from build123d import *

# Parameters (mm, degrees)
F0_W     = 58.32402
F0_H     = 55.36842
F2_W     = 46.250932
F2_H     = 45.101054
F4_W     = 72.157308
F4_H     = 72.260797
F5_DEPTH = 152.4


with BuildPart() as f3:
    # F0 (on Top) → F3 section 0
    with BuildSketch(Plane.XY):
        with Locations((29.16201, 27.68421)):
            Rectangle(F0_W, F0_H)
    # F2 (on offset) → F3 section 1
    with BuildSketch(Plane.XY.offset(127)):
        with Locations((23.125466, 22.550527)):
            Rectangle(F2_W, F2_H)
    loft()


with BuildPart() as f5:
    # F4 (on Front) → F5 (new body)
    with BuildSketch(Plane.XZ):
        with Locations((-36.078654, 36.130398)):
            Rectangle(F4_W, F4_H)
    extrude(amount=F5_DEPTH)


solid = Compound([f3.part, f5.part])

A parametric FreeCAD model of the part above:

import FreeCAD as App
import Part
import Sketcher

V = App.Vector
Q = App.Units.Quantity

doc = App.newDocument("Part")
body = doc.addObject("PartDesign::Body", "Body")

# Sketch on XY plane
sketch1 = body.newObject("Sketcher::SketchObject", "Sketch")
sketch1.AttachmentSupport = (doc.getObject("XY_Plane"), [""])
sketch1.MapMode = "FlatFace"
sketch1.addGeometry([
    Part.LineSegment(V(0, 55, 0), V(0, 0, 0)),
    Part.LineSegment(V(0, 0, 0), V(58, 0, 0)),
    Part.LineSegment(V(58, 0, 0), V(58, 55, 0)),
    Part.LineSegment(V(58, 55, 0), V(0, 55, 0)),
], False)
sketch1.addConstraint([
    Sketcher.Constraint("Coincident", 0, 2, 1, 1),
    Sketcher.Constraint("Coincident", 1, 2, 2, 1),
    Sketcher.Constraint("Coincident", 2, 2, 3, 1),
    Sketcher.Constraint("Coincident", 3, 2, 0, 1),
    Sketcher.Constraint("Vertical", 0),
    Sketcher.Constraint("Horizontal", 1),
    Sketcher.Constraint("Vertical", 2),
    Sketcher.Constraint("Horizontal", 3),
    Sketcher.Constraint("Coincident", 0, 2, -1, 1),
    Sketcher.Constraint("DistanceX", 1, 1, 1, 2, 58.32402),
    Sketcher.Constraint("DistanceY", 0, 2, 0, 1, 55.36842),
])

# Sketch on XY plane
sketch2 = body.newObject("Sketcher::SketchObject", "Sketch001")
sketch2.AttachmentSupport = (doc.getObject("XY_Plane"), [""])
sketch2.MapMode = "FlatFace"
sketch2.AttachmentOffset = App.Placement(V(0, 0, 5 * 25.4), App.Rotation())
sketch2.addGeometry([
    Part.LineSegment(V(0, 45, 0), V(0, 0, 0)),
    Part.LineSegment(V(0, 0, 0), V(46, 0, 0)),
    Part.LineSegment(V(46, 0, 0), V(46, 45, 0)),
    Part.LineSegment(V(46, 45, 0), V(0, 45, 0)),
], False)
sketch2.addConstraint([
    Sketcher.Constraint("Coincident", 0, 2, 1, 1),
    Sketcher.Constraint("Coincident", 1, 2, 2, 1),
    Sketcher.Constraint("Coincident", 2, 2, 3, 1),
    Sketcher.Constraint("Coincident", 3, 2, 0, 1),
    Sketcher.Constraint("Vertical", 0),
    Sketcher.Constraint("Horizontal", 1),
    Sketcher.Constraint("Vertical", 2),
    Sketcher.Constraint("Horizontal", 3),
    Sketcher.Constraint("Coincident", 0, 2, -1, 1),
    Sketcher.Constraint("DistanceX", 1, 1, 1, 2, 46.250932),
    Sketcher.Constraint("DistanceY", 0, 2, 0, 1, 45.101054),
])

additiveloft = body.newObject("PartDesign::AdditiveLoft", "AdditiveLoft")
additiveloft.Profile = sketch1
additiveloft.Sections = [sketch2]
body2 = doc.addObject("PartDesign::Body", "Body001")

# Sketch on XZ plane
sketch3 = body2.newObject("Sketcher::SketchObject", "Sketch002")
sketch3.AttachmentSupport = (doc.getObject("XZ_Plane001"), [""])
sketch3.MapMode = "FlatFace"
sketch3.addGeometry([
    Part.LineSegment(V(-72, 72, 0), V(-72, 0, 0)),
    Part.LineSegment(V(-72, 0, 0), V(0, 0, 0)),
    Part.LineSegment(V(0, 0, 0), V(0, 72, 0)),
    Part.LineSegment(V(0, 72, 0), V(-72, 72, 0)),
], False)
sketch3.addConstraint([
    Sketcher.Constraint("Coincident", 0, 2, 1, 1),
    Sketcher.Constraint("Coincident", 1, 2, 2, 1),
    Sketcher.Constraint("Coincident", 2, 2, 3, 1),
    Sketcher.Constraint("Coincident", 3, 2, 0, 1),
    Sketcher.Constraint("Vertical", 0),
    Sketcher.Constraint("Horizontal", 1),
    Sketcher.Constraint("Vertical", 2),
    Sketcher.Constraint("Horizontal", 3),
    Sketcher.Constraint("Coincident", 1, 2, -1, 1),
    Sketcher.Constraint("DistanceX", 1, 1, 1, 2, 72.157308),
    Sketcher.Constraint("DistanceY", 0, 2, 0, 1, 72.260797),
])
pad1 = body2.newObject("PartDesign::Pad", "Pad")
pad1.Profile = sketch3
pad1.Length = Q("6 in")

doc.recompute()
